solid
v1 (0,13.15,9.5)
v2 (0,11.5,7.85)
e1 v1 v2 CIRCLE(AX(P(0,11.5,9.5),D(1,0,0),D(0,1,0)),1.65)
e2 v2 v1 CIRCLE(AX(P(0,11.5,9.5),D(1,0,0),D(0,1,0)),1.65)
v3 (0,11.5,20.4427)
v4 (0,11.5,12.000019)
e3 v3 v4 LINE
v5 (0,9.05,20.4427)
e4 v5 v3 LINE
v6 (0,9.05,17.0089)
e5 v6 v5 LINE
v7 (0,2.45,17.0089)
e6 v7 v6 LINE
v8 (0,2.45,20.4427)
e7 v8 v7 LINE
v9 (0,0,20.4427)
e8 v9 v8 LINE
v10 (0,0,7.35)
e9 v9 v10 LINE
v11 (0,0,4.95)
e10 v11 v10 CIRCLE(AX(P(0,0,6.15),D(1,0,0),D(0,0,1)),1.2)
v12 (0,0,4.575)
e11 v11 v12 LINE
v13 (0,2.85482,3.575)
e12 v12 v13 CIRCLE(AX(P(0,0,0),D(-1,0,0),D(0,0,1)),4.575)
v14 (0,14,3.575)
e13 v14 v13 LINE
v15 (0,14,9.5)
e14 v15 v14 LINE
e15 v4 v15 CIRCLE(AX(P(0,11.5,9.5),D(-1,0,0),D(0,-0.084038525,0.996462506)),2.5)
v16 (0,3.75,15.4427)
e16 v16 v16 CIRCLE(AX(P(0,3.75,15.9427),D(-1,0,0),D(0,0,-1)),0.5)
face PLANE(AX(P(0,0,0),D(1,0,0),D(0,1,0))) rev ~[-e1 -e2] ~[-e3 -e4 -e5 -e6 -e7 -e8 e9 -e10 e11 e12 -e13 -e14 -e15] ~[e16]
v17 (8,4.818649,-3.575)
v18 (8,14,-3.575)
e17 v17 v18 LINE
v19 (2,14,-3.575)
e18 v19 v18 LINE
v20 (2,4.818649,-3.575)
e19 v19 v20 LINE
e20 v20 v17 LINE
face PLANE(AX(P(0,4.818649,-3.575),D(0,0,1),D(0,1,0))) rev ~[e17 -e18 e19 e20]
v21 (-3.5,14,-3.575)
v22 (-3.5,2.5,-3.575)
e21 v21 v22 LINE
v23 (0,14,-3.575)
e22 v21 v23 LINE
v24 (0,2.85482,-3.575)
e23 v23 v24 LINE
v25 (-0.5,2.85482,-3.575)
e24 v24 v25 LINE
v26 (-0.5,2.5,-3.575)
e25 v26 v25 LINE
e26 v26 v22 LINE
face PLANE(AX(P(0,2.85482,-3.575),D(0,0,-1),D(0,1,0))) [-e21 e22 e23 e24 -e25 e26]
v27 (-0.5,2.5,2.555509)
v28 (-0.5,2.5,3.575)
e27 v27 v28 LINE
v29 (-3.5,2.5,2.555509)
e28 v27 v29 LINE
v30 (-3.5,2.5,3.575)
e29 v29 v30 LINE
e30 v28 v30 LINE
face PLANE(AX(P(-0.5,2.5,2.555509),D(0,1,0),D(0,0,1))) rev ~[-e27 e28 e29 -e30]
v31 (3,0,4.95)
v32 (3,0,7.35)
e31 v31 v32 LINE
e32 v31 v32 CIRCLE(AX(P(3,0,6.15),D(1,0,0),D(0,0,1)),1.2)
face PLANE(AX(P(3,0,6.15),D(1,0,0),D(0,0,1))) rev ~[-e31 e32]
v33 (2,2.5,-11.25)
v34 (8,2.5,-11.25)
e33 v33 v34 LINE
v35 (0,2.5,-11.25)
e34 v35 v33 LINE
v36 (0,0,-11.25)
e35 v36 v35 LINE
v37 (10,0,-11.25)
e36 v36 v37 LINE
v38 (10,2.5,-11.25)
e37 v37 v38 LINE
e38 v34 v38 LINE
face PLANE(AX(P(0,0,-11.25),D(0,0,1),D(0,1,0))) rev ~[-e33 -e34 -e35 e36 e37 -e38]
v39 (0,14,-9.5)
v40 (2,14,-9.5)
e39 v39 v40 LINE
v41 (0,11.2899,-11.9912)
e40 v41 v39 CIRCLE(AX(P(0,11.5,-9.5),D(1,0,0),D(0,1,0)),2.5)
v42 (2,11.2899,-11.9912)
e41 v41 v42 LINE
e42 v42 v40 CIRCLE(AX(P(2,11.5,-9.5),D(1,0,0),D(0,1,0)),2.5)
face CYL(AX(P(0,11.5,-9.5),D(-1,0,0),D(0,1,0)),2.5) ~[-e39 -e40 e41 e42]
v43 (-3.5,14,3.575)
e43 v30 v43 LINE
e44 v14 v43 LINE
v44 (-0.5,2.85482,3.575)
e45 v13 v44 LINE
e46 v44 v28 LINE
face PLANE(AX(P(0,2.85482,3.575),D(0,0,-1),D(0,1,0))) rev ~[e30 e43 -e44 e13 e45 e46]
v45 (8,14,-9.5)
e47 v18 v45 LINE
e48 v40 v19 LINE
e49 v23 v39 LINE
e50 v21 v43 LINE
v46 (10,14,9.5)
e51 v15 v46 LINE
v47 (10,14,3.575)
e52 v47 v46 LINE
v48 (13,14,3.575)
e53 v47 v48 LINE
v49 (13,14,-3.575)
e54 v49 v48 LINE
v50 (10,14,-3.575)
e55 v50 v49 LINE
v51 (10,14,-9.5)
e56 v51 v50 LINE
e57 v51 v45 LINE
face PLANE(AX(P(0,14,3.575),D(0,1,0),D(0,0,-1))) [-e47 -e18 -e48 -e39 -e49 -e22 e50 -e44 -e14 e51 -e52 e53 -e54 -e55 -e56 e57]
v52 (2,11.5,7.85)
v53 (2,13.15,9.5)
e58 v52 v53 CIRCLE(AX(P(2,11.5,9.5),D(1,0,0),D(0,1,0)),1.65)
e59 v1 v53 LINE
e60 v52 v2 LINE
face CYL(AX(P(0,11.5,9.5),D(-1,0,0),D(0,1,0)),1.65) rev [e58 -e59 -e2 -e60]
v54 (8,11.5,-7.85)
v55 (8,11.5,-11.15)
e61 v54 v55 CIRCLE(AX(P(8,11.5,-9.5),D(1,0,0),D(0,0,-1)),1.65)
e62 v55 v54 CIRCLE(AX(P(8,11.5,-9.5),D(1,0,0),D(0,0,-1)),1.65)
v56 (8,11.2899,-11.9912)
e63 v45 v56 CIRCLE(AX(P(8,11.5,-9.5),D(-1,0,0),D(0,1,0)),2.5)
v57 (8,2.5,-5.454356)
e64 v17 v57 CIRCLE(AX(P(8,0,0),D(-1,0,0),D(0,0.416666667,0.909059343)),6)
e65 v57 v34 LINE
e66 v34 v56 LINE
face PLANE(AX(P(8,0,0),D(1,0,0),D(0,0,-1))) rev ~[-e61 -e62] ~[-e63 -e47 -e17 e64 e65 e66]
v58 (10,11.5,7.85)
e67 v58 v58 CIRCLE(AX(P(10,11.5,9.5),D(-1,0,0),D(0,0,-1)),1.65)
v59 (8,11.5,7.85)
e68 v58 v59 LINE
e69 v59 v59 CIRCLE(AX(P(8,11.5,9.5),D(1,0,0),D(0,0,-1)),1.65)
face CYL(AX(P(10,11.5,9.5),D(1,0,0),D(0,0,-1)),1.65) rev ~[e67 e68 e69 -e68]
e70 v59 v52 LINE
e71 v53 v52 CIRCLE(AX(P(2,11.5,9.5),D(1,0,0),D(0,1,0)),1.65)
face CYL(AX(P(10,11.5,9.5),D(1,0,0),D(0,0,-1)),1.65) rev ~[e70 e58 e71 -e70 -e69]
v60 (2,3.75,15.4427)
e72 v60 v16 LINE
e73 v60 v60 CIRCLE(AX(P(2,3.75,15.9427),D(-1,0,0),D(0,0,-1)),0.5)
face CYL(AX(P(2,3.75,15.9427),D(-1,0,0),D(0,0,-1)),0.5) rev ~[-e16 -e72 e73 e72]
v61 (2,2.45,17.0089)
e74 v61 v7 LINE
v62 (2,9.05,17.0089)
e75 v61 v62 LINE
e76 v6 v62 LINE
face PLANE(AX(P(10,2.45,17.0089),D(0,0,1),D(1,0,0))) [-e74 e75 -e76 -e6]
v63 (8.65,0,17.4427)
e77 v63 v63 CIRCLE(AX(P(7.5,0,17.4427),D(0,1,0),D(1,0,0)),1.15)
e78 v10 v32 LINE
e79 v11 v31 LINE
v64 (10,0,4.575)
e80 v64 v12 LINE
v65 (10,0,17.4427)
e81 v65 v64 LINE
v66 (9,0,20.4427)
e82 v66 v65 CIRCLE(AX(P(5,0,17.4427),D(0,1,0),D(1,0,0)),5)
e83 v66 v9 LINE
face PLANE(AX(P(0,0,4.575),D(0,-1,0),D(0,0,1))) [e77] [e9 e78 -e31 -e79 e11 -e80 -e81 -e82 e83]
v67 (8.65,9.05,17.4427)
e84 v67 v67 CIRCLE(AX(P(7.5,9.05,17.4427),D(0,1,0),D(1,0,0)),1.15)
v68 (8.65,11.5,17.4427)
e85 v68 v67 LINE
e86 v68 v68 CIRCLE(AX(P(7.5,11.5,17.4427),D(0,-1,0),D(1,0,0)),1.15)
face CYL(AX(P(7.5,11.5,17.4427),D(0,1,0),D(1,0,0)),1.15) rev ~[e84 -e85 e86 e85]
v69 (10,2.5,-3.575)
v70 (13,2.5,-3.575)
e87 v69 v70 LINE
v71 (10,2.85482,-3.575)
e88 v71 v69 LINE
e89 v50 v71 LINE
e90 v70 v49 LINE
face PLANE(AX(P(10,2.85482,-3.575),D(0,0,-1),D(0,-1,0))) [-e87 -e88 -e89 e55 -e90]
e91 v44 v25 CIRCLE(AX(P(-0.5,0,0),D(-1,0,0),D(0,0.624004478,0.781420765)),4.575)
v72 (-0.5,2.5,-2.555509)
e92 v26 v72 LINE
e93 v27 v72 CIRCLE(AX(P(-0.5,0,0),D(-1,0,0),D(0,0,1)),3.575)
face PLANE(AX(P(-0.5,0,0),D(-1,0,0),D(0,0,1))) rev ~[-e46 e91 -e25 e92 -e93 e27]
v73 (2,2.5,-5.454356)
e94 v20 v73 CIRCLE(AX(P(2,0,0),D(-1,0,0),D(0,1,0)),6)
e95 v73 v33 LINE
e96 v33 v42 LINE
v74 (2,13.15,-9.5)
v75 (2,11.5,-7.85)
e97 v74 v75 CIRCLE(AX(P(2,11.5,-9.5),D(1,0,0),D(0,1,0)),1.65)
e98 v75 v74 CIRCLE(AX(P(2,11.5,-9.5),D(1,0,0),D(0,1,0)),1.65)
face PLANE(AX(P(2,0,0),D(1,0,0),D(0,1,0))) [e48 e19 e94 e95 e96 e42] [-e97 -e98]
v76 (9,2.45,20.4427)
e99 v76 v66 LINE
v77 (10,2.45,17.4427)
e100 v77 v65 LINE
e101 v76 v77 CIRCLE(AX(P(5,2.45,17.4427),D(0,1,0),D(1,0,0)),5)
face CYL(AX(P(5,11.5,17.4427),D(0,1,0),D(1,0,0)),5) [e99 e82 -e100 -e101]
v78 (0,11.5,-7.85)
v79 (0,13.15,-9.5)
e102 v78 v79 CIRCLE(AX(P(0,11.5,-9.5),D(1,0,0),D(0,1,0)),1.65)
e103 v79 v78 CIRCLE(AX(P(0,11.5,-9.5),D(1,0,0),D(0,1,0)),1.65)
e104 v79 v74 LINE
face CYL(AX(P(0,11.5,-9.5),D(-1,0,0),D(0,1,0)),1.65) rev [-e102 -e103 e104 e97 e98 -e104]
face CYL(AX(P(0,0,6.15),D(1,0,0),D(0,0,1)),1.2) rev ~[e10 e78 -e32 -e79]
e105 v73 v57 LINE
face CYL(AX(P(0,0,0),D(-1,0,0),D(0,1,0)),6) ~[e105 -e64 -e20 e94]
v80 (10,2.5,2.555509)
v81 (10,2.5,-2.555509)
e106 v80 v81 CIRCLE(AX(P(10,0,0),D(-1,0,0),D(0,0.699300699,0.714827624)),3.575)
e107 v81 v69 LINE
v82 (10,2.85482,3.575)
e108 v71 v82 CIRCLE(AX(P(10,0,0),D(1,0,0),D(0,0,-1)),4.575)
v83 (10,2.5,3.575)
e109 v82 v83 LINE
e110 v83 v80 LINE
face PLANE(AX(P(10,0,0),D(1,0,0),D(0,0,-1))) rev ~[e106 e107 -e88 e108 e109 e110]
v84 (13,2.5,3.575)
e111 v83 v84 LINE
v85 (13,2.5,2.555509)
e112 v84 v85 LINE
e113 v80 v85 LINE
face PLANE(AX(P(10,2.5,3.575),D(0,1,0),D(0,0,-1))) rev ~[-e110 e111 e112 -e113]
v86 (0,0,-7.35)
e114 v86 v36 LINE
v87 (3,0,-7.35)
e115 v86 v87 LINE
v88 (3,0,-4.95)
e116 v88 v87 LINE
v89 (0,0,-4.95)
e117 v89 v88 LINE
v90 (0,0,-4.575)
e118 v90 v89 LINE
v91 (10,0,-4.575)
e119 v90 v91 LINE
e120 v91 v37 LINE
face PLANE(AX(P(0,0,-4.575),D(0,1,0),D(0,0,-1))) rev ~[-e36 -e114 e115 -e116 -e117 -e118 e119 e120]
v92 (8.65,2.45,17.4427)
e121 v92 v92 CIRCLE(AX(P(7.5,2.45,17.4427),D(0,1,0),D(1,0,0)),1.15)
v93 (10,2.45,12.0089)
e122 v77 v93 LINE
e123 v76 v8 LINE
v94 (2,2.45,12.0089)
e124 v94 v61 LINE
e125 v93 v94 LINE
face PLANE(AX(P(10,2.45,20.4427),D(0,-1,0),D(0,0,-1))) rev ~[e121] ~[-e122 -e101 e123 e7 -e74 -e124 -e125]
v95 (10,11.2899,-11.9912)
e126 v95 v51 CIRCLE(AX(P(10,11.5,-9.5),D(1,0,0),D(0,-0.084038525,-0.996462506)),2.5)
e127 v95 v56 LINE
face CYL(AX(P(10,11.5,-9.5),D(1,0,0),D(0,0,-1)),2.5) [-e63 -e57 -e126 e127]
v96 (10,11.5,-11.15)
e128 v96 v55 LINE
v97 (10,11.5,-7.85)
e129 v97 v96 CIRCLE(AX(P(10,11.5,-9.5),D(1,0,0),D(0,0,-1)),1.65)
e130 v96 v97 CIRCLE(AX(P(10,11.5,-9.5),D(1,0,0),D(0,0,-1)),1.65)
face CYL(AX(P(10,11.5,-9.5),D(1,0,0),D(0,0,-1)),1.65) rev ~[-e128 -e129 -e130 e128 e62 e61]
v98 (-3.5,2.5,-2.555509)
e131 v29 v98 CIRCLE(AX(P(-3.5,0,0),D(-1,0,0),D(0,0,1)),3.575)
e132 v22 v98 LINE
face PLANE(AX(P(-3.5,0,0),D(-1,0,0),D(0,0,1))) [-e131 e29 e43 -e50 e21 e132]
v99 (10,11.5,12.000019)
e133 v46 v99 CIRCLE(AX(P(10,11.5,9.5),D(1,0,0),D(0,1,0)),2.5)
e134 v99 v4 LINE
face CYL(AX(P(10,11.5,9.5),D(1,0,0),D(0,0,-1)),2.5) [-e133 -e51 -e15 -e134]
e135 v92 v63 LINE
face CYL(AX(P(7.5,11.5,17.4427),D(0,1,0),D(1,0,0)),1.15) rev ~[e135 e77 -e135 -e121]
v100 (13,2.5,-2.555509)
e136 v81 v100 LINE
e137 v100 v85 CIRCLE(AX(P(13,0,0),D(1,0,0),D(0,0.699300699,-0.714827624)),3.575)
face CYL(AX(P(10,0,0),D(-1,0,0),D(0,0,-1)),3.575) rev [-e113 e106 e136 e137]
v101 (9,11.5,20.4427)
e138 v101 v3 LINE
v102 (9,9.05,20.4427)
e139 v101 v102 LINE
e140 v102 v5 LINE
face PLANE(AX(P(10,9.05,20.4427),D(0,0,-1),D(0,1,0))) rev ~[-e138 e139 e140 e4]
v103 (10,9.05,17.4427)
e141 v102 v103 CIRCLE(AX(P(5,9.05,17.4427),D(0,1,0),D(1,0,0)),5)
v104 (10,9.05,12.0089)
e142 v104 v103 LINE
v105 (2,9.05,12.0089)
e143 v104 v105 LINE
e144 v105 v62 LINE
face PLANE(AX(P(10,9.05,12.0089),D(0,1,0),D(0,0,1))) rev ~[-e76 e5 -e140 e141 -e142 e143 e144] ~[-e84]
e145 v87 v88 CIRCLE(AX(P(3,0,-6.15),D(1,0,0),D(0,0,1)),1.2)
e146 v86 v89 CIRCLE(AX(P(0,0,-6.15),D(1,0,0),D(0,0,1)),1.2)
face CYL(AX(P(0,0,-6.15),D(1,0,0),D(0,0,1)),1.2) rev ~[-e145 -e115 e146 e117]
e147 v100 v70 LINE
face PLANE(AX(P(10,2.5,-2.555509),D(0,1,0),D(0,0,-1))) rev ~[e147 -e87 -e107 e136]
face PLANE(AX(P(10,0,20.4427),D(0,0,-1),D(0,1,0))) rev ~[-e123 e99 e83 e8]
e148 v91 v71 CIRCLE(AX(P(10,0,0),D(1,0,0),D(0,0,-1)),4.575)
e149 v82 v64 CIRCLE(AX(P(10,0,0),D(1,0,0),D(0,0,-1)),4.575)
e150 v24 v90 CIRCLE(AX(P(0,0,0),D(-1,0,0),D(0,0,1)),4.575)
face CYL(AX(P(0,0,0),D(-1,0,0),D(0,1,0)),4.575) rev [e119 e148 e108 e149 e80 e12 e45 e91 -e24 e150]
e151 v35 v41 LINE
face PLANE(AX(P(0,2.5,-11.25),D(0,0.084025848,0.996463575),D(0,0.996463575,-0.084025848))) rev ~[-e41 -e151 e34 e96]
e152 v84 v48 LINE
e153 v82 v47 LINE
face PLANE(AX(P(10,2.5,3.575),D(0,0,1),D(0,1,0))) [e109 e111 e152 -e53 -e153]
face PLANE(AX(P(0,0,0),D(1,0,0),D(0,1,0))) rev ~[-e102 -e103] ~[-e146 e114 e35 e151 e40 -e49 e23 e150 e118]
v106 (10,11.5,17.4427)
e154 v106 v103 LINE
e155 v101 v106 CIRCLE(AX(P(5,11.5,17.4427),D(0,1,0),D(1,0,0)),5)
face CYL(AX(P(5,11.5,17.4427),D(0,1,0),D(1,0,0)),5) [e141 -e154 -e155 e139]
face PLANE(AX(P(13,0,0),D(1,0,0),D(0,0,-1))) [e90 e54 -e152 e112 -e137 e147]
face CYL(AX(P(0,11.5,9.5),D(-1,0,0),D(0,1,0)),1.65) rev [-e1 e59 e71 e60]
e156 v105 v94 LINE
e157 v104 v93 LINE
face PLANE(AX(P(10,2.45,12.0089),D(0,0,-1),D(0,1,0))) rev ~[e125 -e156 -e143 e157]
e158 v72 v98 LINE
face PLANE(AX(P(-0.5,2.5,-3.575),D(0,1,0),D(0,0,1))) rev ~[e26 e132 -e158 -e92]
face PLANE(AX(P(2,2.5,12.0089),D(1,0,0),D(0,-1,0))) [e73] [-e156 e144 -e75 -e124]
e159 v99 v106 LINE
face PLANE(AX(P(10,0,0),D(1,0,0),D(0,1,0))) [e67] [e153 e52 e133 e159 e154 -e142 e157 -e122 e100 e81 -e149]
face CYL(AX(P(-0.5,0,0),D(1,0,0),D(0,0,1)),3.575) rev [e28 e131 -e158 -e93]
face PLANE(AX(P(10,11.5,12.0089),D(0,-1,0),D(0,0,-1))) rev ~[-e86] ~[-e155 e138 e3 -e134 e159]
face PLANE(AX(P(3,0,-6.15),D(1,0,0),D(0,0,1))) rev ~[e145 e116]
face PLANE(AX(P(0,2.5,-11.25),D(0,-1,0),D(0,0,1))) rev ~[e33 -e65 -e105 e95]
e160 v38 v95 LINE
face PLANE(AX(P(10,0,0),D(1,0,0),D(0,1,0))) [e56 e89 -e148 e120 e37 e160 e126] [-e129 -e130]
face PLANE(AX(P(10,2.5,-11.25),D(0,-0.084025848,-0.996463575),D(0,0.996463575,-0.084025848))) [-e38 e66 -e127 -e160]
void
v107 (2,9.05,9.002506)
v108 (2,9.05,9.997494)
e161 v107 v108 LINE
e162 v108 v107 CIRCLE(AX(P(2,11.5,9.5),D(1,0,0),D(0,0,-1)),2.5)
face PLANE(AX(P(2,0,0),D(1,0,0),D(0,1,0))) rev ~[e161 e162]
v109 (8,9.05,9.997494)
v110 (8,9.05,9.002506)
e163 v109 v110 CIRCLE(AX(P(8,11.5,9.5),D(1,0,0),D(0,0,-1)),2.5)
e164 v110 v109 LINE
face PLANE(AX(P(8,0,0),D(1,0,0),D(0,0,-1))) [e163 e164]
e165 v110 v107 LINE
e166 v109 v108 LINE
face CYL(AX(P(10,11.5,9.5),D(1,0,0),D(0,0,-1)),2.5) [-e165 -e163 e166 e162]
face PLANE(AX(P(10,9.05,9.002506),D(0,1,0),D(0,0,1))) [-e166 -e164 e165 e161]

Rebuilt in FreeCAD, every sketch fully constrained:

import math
import FreeCAD as App
import Part
import Sketcher

V = App.Vector
Q = App.Units.Quantity

doc = App.newDocument("Part")
params = doc.addObject("Spreadsheet::Sheet", "Params")
for row, (alias, value) in enumerate([
    ("sketch1_diameter", "3.3 mm"),
    ("sketch1_radius", "2.5 mm"),
    ("sketch1_height", "19 mm"),
    ("sketch1_radius2", "1.25 mm"),
    ("sketch1_width", "2.5 mm"),
    ("pad1_length", "2 mm"),
    ("sketch2_radius", "6 mm"),
    ("sketch2_width", "2.5 mm"),
    ("sketch2_height", "7.15 mm"),
    ("pad2_length", "10 mm"),
    ("sketch3_radius", "6 mm"),
    ("sketch3_diameter", "3.3 mm"),
    ("sketch3_radius2", "2.5 mm"),
    ("sketch3_height", "19 mm"),
    ("pad3_length", "2 mm"),
    ("sketch4_height", "7.15 mm"),
    ("pad4_length", "0.5 mm"),
    ("sketch5_height", "7.15 mm"),
    ("sketch5_width", "11.5 mm"),
    ("pad5_length", "3 mm"),
    ("sketch6_width", "11.5 mm"),
    ("sketch6_height", "7.15 mm"),
    ("pad6_length", "3 mm"),
    ("sketch7_diameter", "2.4 mm"),
    ("hole_diameter", "2.4 mm"),
    ("hole_depth", "3 mm"),
    ("sketch8_radius", "6 mm"),
    ("sketch8_diameter", "3.3 mm"),
    ("sketch8_radius2", "2.5 mm"),
    ("sketch8_width", "6.6 mm"),
    ("sketch8_width2", "2.5 mm"),
    ("pad7_length", "10 mm"),
    ("sketch9_diameter", "2.3 mm"),
    ("sketch9_height", "3 mm"),
    ("sketch9_radius", "5 mm"),
    ("pocket1_length", "11.5 mm"),
    ("sketch10_width", "2 mm"),
    ("sketch10_height", "6.6 mm"),
    ("pad8_length", "5 mm"),
    ("sketch11_diameter", "1 mm"),
    ("hole2_diameter", "1 mm"),
    ("hole2_depth", "8 mm"),
], start=1):
    params.set(f"A{row}", alias)
    params.set(f"B{row}", "=" + value)
    params.setAlias(f"B{row}", alias)

body = doc.addObject("PartDesign::Body", "Body")

sketch1 = body.newObject("Sketcher::SketchObject", "Sketch")
sketch1.AttachmentSupport = (doc.getObject("YZ_Plane"), [""])
sketch1.MapMode = "FlatFace"
sketch1.addGeometry([
    Part.LineSegment(V(0, -4.58, 0), V(0, -4.9, 0)),
    Part.ArcOfCircle(Part.Circle(V(0, -6.15, 0), V(0, 0, 1), 1.25), math.radians(-90), math.radians(90)),
    Part.LineSegment(V(0, -7.4, 0), V(0, -11.25, 0)),
    Part.LineSegment(V(0, -11.25, 0), V(2.5, -11.25, 0)),
    Part.LineSegment(V(2.5, -11.25, 0), V(11.29, -11.99, 0)),
    Part.ArcOfCircle(Part.Circle(V(11.5, -9.5, 0), V(0, 0, 1), 2.5), math.radians(-95), math.radians(0)),
    Part.LineSegment(V(14, -9.5, 0), V(14, 9.5, 0)),
    Part.ArcOfCircle(Part.Circle(V(11.5, 9.5, 0), V(0, 0, 1), 2.5), math.radians(0), math.radians(95)),
    Part.LineSegment(V(11.29, 11.99, 0), V(2.5, 11.25, 0)),
    Part.LineSegment(V(2.5, 11.25, 0), V(0, 11.25, 0)),
    Part.LineSegment(V(0, 11.25, 0), V(0, 7.4, 0)),
    Part.ArcOfCircle(Part.Circle(V(0, 6.15, 0), V(0, 0, 1), 1.25), math.radians(-90), math.radians(90)),
    Part.LineSegment(V(0, 4.9, 0), V(0, 4.58, 0)),
    Part.ArcOfCircle(Part.Circle(V(0, 0, 0), V(0, 0, 1), 4.58), math.radians(-90), math.radians(90)),
    Part.Circle(V(11.5, -9.5, 0), V(0, 0, 1), 1.65),
    Part.Circle(V(11.5, 9.5, 0), V(0, 0, 1), 1.65),
], False)
sketch1.addConstraint([
    Sketcher.Constraint("Coincident", 0, 2, 1, 2),
    Sketcher.Constraint("Coincident", 1, 1, 2, 1),
    Sketcher.Constraint("Coincident", 2, 2, 3, 1),
    Sketcher.Constraint("Coincident", 3, 2, 4, 1),
    Sketcher.Constraint("Tangent", 4, 2, 5, 1),
    Sketcher.Constraint("Tangent", 5, 2, 6, 1),
    Sketcher.Constraint("Tangent", 6, 2, 7, 1),
    Sketcher.Constraint("Tangent", 7, 2, 8, 1),
    Sketcher.Constraint("Coincident", 8, 2, 9, 1),
    Sketcher.Constraint("Coincident", 9, 2, 10, 1),
    Sketcher.Constraint("Coincident", 10, 2, 11, 2),
    Sketcher.Constraint("Coincident", 11, 1, 12, 1),
    Sketcher.Constraint("Coincident", 12, 2, 13, 2),
    Sketcher.Constraint("Coincident", 13, 1, 0, 1),
    Sketcher.Constraint("Vertical", 0),
    Sketcher.Constraint("Vertical", 2),
    Sketcher.Constraint("Horizontal", 3),
    Sketcher.Constraint("Vertical", 6),
    Sketcher.Constraint("Horizontal", 9),
    Sketcher.Constraint("Vertical", 10),
    Sketcher.Constraint("Vertical", 12),
    Sketcher.Constraint("Coincident", 13, 3, -1, 1),
    Sketcher.Constraint("Coincident", 14, 3, 5, 3),
    Sketcher.Constraint("Coincident", 15, 3, 7, 3),
    Sketcher.Constraint("Equal", 5, 7),
    Sketcher.Constraint("Equal", 1, 11),
    Sketcher.Constraint("Equal", 14, 15),
    Sketcher.Constraint("Symmetric", 1, 3, 11, 3, -1, 1),
    Sketcher.Constraint("Symmetric", 2, 2, 9, 2, -1, 1),
    Sketcher.Constraint("Symmetric", 4, 2, 7, 2, -1),
    Sketcher.Constraint("PointOnObject", 1, 3, -2),
    Sketcher.Constraint("PointOnObject", 0, 2, -2),
    Sketcher.Constraint("PointOnObject", 1, 1, -2),
    Sketcher.Constraint("PointOnObject", 11, 1, -2),
    Sketcher.Constraint("Diameter", 14, Q("3.3 mm")),
    Sketcher.Constraint("Radius", 5, Q("2.5 mm")),
    Sketcher.Constraint("DistanceY", 6, 1, 6, 2, Q("19 mm")),
    Sketcher.Constraint("Radius", 1, Q("1.25 mm")),
    Sketcher.Constraint("DistanceX", 3, 1, 3, 2, Q("2.5 mm")),
    Sketcher.Constraint("Radius", 13, Q("4.575 mm")),
    Sketcher.Constraint("DistanceX", -1, 1, 5, 3, Q("11.5 mm")),
    Sketcher.Constraint("DistanceY", 1, 3, 11, 3, Q("12.3 mm")),
    Sketcher.Constraint("DistanceY", 2, 2, -1, 1, Q("11.25 mm")),
])
sketch1.setExpression("Constraints[34]", "Params.sketch1_diameter")
sketch1.setExpression("Constraints[35]", "Params.sketch1_radius")
sketch1.setExpression("Constraints[36]", "Params.sketch1_height")
sketch1.setExpression("Constraints[37]", "Params.sketch1_radius2")
sketch1.setExpression("Constraints[38]", "Params.sketch1_width")
pad1 = body.newObject("PartDesign::Pad", "Pad")
pad1.Profile = sketch1
pad1.setExpression("Length", "Params.pad1_length")

sketch2 = body.newObject("Sketcher::SketchObject", "Sketch001")
sketch2.AttachmentSupport = (doc.getObject("YZ_Plane"), [""])
sketch2.MapMode = "FlatFace"
sketch2.addGeometry([
    Part.LineSegment(V(0, -4.6, 0), V(0, -11.2, 0)),
    Part.LineSegment(V(0, -11.2, 0), V(2.5, -11.2, 0)),
    Part.LineSegment(V(2.5, -11.2, 0), V(2.5, -5.5, 0)),
    Part.ArcOfCircle(Part.Circle(V(0, 0, 0), V(0, 0, 1), 6), math.radians(-65), math.radians(-37)),
    Part.LineSegment(V(4.8, -3.6, 0), V(14, -3.6, 0)),
    Part.LineSegment(V(14, -3.6, 0), V(14, 3.6, 0)),
    Part.LineSegment(V(14, 3.6, 0), V(4.8, 3.6, 0)),
    Part.ArcOfCircle(Part.Circle(V(0, 0, 0), V(0, 0, 1), 6), math.radians(37), math.radians(65)),
    Part.LineSegment(V(2.5, 5.5, 0), V(2.5, 11.2, 0)),
    Part.LineSegment(V(2.5, 11.2, 0), V(0, 11.2, 0)),
    Part.LineSegment(V(0, 11.2, 0), V(0, 4.6, 0)),
    Part.ArcOfCircle(Part.Circle(V(0, 0, 0), V(0, 0, 1), 4.6), math.radians(-90), math.radians(90)),
], False)
sketch2.addConstraint([
    Sketcher.Constraint("Coincident", 0, 2, 1, 1),
    Sketcher.Constraint("Coincident", 1, 2, 2, 1),
    Sketcher.Constraint("Coincident", 2, 2, 3, 1),
    Sketcher.Constraint("Coincident", 3, 2, 4, 1),
    Sketcher.Constraint("Coincident", 4, 2, 5, 1),
    Sketcher.Constraint("Coincident", 5, 2, 6, 1),
    Sketcher.Constraint("Coincident", 6, 2, 7, 1),
    Sketcher.Constraint("Coincident", 7, 2, 8, 1),
    Sketcher.Constraint("Coincident", 8, 2, 9, 1),
    Sketcher.Constraint("Coincident", 9, 2, 10, 1),
    Sketcher.Constraint("Coincident", 10, 2, 11, 2),
    Sketcher.Constraint("Coincident", 11, 1, 0, 1),
    Sketcher.Constraint("Vertical", 0),
    Sketcher.Constraint("Horizontal", 1),
    Sketcher.Constraint("Vertical", 2),
    Sketcher.Constraint("Horizontal", 4),
    Sketcher.Constraint("Vertical", 5),
    Sketcher.Constraint("Horizontal", 6),
    Sketcher.Constraint("Vertical", 8),
    Sketcher.Constraint("Horizontal", 9),
    Sketcher.Constraint("Vertical", 10),
    Sketcher.Constraint("Coincident", 3, 3, -1, 1),
    Sketcher.Constraint("Coincident", 7, 3, -1, 1),
    Sketcher.Constraint("Coincident", 11, 3, -1, 1),
    Sketcher.Constraint("Equal", 3, 7),
    Sketcher.Constraint("Symmetric", 0, 2, 9, 2, -1, 1),
    Sketcher.Constraint("PointOnObject", 0, 2, -2),
    Sketcher.Constraint("Vertical", 3, 2, 6, 2),
    Sketcher.Constraint("Vertical", 2, 2, 7, 2),
    Sketcher.Constraint("Radius", 3, Q("6 mm")),
    Sketcher.Constraint("DistanceX", 1, 1, 1, 2, Q("2.5 mm")),
    Sketcher.Constraint("Radius", 11, Q("4.575 mm")),
    Sketcher.Constraint("DistanceY", 5, 1, 5, 2, Q("7.15 mm")),
    Sketcher.Constraint("DistanceX", 2, 2, 4, 2, Q("11.5 mm")),
    Sketcher.Constraint("DistanceY", 0, 2, -1, 1, Q("11.25 mm")),
])
sketch2.setExpression("Constraints[29]", "Params.sketch2_radius")
sketch2.setExpression("Constraints[30]", "Params.sketch2_width")
sketch2.setExpression("Constraints[32]", "Params.sketch2_height")
pad2 = body.newObject("PartDesign::Pad", "Pad001")
pad2.Profile = sketch2
pad2.setExpression("Length", "Params.pad2_length")

sketch3 = body.newObject("Sketcher::SketchObject", "Sketch002")
sketch3.AttachmentSupport = (doc.getObject("YZ_Plane"), [""])
sketch3.MapMode = "FlatFace"
sketch3.AttachmentOffset = App.Placement(V(0, 0, 10), App.Rotation())
sketch3.addGeometry([
    Part.LineSegment(V(2.5, -5.5, 0), V(2.5, -11.2, 0)),
    Part.LineSegment(V(2.5, -11.2, 0), V(11.3, -12, 0)),
    Part.ArcOfCircle(Part.Circle(V(11.5, -9.5, 0), V(0, 0, 1), 2.5), math.radians(-95), math.radians(0)),
    Part.LineSegment(V(14, -9.5, 0), V(14, 9.5, 0)),
    Part.ArcOfCircle(Part.Circle(V(11.5, 9.5, 0), V(0, 0, 1), 2.5), math.radians(0), math.radians(95)),
    Part.LineSegment(V(11.3, 12, 0), V(2.5, 11.2, 0)),
    Part.LineSegment(V(2.5, 11.2, 0), V(2.5, 5.5, 0)),
    Part.ArcOfCircle(Part.Circle(V(0, 0, 0), V(0, 0, 1), 6), math.radians(-65), math.radians(65)),
    Part.Circle(V(11.5, -9.5, 0), V(0, 0, 1), 1.6),
    Part.Circle(V(11.5, 9.5, 0), V(0, 0, 1), 1.6),
], False)
sketch3.addConstraint([
    Sketcher.Constraint("Coincident", 0, 2, 1, 1),
    Sketcher.Constraint("Tangent", 1, 2, 2, 1),
    Sketcher.Constraint("Tangent", 2, 2, 3, 1),
    Sketcher.Constraint("Tangent", 3, 2, 4, 1),
    Sketcher.Constraint("Tangent", 4, 2, 5, 1),
    Sketcher.Constraint("Coincident", 5, 2, 6, 1),
    Sketcher.Constraint("Coincident", 6, 2, 7, 2),
    Sketcher.Constraint("Coincident", 7, 1, 0, 1),
    Sketcher.Constraint("Vertical", 0),
    Sketcher.Constraint("Vertical", 3),
    Sketcher.Constraint("Vertical", 6),
    Sketcher.Constraint("Coincident", 7, 3, -1, 1),
    Sketcher.Constraint("Coincident", 8, 3, 2, 3),
    Sketcher.Constraint("Coincident", 9, 3, 4, 3),
    Sketcher.Constraint("Equal", 2, 4),
    Sketcher.Constraint("Equal", 8, 9),
    Sketcher.Constraint("Symmetric", 1, 2, 4, 2, -1),
    Sketcher.Constraint("Vertical", 0, 2, 5, 2),
    Sketcher.Constraint("Radius", 7, Q("6 mm")),
    Sketcher.Constraint("Diameter", 8, Q("3.3 mm")),
    Sketcher.Constraint("Radius", 2, Q("2.5 mm")),
    Sketcher.Constraint("DistanceY", 3, 1, 3, 2, Q("19 mm")),
    Sketcher.Constraint("DistanceX", -1, 1, 2, 3, Q("11.5 mm")),
    Sketcher.Constraint("DistanceX", -1, 1, 0, 2, Q("2.5 mm")),
    Sketcher.Constraint("Angle", 1, Q("-4.82 deg")),
])
sketch3.setExpression("Constraints[18]", "Params.sketch3_radius")
sketch3.setExpression("Constraints[19]", "Params.sketch3_diameter")
sketch3.setExpression("Constraints[20]", "Params.sketch3_radius2")
sketch3.setExpression("Constraints[21]", "Params.sketch3_height")
pad3 = body.newObject("PartDesign::Pad", "Pad002")
pad3.Profile = sketch3
pad3.setExpression("Length", "Params.pad3_length")
pad3.Reversed = True

sketch4 = body.newObject("Sketcher::SketchObject", "Sketch003")
sketch4.AttachmentSupport = (doc.getObject("YZ_Plane"), [""])
sketch4.MapMode = "FlatFace"
sketch4.addGeometry([
    Part.LineSegment(V(2.9, -3.6, 0), V(14, -3.6, 0)),
    Part.LineSegment(V(14, -3.6, 0), V(14, 3.6, 0)),
    Part.LineSegment(V(14, 3.6, 0), V(2.9, 3.6, 0)),
    Part.ArcOfCircle(Part.Circle(V(0, 0, 0), V(0, 0, 1), 4.6), math.radians(-51), math.radians(51)),
], False)
sketch4.addConstraint([
    Sketcher.Constraint("Coincident", 0, 2, 1, 1),
    Sketcher.Constraint("Coincident", 1, 2, 2, 1),
    Sketcher.Constraint("Coincident", 2, 2, 3, 2),
    Sketcher.Constraint("Coincident", 3, 1, 0, 1),
    Sketcher.Constraint("Horizontal", 0),
    Sketcher.Constraint("Vertical", 1),
    Sketcher.Constraint("Horizontal", 2),
    Sketcher.Constraint("Coincident", 3, 3, -1, 1),
    Sketcher.Constraint("Vertical", 2, 2, 3, 1),
    Sketcher.Constraint("Radius", 3, Q("4.575 mm")),
    Sketcher.Constraint("DistanceY", 1, 1, 1, 2, Q("7.15 mm")),
    Sketcher.Constraint("DistanceX", -1, 1, 0, 2, Q("14 mm")),
])
sketch4.setExpression("Constraints[10]", "Params.sketch4_height")
pad4 = body.newObject("PartDesign::Pad", "Pad003")
pad4.Profile = sketch4
pad4.setExpression("Length", "Params.pad4_length")
pad4.Reversed = True

sketch5 = body.newObject("Sketcher::SketchObject", "Sketch004")
sketch5.AttachmentSupport = (doc.getObject("YZ_Plane"), [""])
sketch5.MapMode = "FlatFace"
sketch5.AttachmentOffset = App.Placement(V(0, 0, -0.5), App.Rotation())
sketch5.addGeometry([
    Part.ArcOfCircle(Part.Circle(V(0, 0, 0), V(0, 0, 1), 3.6), math.radians(-46), math.radians(46)),
    Part.LineSegment(V(2.5, 2.6, 0), V(2.5, 3.6, 0)),
    Part.LineSegment(V(2.5, 3.6, 0), V(14, 3.6, 0)),
    Part.LineSegment(V(14, 3.6, 0), V(14, -3.6, 0)),
    Part.LineSegment(V(14, -3.6, 0), V(2.5, -3.6, 0)),
    Part.LineSegment(V(2.5, -3.6, 0), V(2.5, -2.6, 0)),
], False)
sketch5.addConstraint([
    Sketcher.Constraint("Coincident", 0, 2, 1, 1),
    Sketcher.Constraint("Coincident", 1, 2, 2, 1),
    Sketcher.Constraint("Coincident", 2, 2, 3, 1),
    Sketcher.Constraint("Coincident", 3, 2, 4, 1),
    Sketcher.Constraint("Coincident", 4, 2, 5, 1),
    Sketcher.Constraint("Coincident", 5, 2, 0, 1),
    Sketcher.Constraint("Vertical", 1),
    Sketcher.Constraint("Horizontal", 2),
    Sketcher.Constraint("Vertical", 3),
    Sketcher.Constraint("Horizontal", 4),
    Sketcher.Constraint("Vertical", 5),
    Sketcher.Constraint("Coincident", 0, 3, -1, 1),
    Sketcher.Constraint("Symmetric", 1, 2, 4, 2, -1),
    Sketcher.Constraint("Radius", 0, Q("3.575 mm")),
    Sketcher.Constraint("DistanceY", 3, 2, 3, 1, Q("7.15 mm")),
    Sketcher.Constraint("DistanceX", 2, 1, 2, 2, Q("11.5 mm")),
    Sketcher.Constraint("DistanceX", -1, 1, 2, 2, Q("14 mm")),
])
sketch5.setExpression("Constraints[14]", "Params.sketch5_height")
sketch5.setExpression("Constraints[15]", "Params.sketch5_width")
pad5 = body.newObject("PartDesign::Pad", "Pad004")
pad5.Profile = sketch5
pad5.setExpression("Length", "Params.pad5_length")
pad5.Reversed = True

sketch6 = body.newObject("Sketcher::SketchObject", "Sketch005")
sketch6.AttachmentSupport = (doc.getObject("YZ_Plane"), [""])
sketch6.MapMode = "FlatFace"
sketch6.AttachmentOffset = App.Placement(V(0, 0, 10), App.Rotation())
sketch6.addGeometry([
    Part.LineSegment(V(2.5, 3.6, 0), V(2.5, 2.6, 0)),
    Part.ArcOfCircle(Part.Circle(V(0, 0, 0), V(0, 0, 1), 3.6), math.radians(-46), math.radians(46)),
    Part.LineSegment(V(2.5, -2.6, 0), V(2.5, -3.6, 0)),
    Part.LineSegment(V(2.5, -3.6, 0), V(14, -3.6, 0)),
    Part.LineSegment(V(14, -3.6, 0), V(14, 3.6, 0)),
    Part.LineSegment(V(14, 3.6, 0), V(2.5, 3.6, 0)),
], False)
sketch6.addConstraint([
    Sketcher.Constraint("Coincident", 0, 2, 1, 2),
    Sketcher.Constraint("Coincident", 1, 1, 2, 1),
    Sketcher.Constraint("Coincident", 2, 2, 3, 1),
    Sketcher.Constraint("Coincident", 3, 2, 4, 1),
    Sketcher.Constraint("Coincident", 4, 2, 5, 1),
    Sketcher.Constraint("Coincident", 5, 2, 0, 1),
    Sketcher.Constraint("Vertical", 0),
    Sketcher.Constraint("Vertical", 2),
    Sketcher.Constraint("Horizontal", 3),
    Sketcher.Constraint("Vertical", 4),
    Sketcher.Constraint("Horizontal", 5),
    Sketcher.Constraint("Coincident", 1, 3, -1, 1),
    Sketcher.Constraint("Symmetric", 2, 2, 5, 2, -1),
    Sketcher.Constraint("DistanceX", 3, 1, 3, 2, Q("11.5 mm")),
    Sketcher.Constraint("Radius", 1, Q("3.575 mm")),
    Sketcher.Constraint("DistanceY", 4, 1, 4, 2, Q("7.15 mm")),
    Sketcher.Constraint("DistanceX", -1, 1, 0, 2, Q("2.5 mm")),
])
sketch6.setExpression("Constraints[13]", "Params.sketch6_width")
sketch6.setExpression("Constraints[15]", "Params.sketch6_height")
pad6 = body.newObject("PartDesign::Pad", "Pad005")
pad6.Profile = sketch6
pad6.setExpression("Length", "Params.pad6_length")

sketch7 = body.newObject("Sketcher::SketchObject", "Sketch006")
sketch7.AttachmentSupport = (doc.getObject("YZ_Plane"), [""])
sketch7.MapMode = "FlatFace"
sketch7.addGeometry([
    Part.Circle(V(0, -6.2, 0), V(0, 0, 1), 1.2),
    Part.Circle(V(0, 6.2, 0), V(0, 0, 1), 1.2),
], False)
sketch7.addConstraint([
    Sketcher.Constraint("Equal", 0, 1),
    Sketcher.Constraint("Symmetric", 0, 3, 1, 3, -1, 1),
    Sketcher.Constraint("PointOnObject", 0, 3, -2),
    Sketcher.Constraint("Diameter", 0, Q("2.4 mm")),
    Sketcher.Constraint("DistanceY", 0, 3, 1, 3, Q("12.3 mm")),
])
sketch7.setExpression("Constraints[3]", "Params.sketch7_diameter")
doc.recompute()
hole = body.newObject("PartDesign::Hole", "Hole")
hole.Profile = sketch7
hole.ThreadType = "None"
hole.setExpression("Diameter", "Params.hole_diameter")
hole.DepthType = "Dimension"
hole.setExpression("Depth", "Params.hole_depth")
hole.DrillPoint = "Flat"
hole.Reversed = True

sketch8 = body.newObject("Sketcher::SketchObject", "Sketch007")
sketch8.AttachmentSupport = (doc.getObject("YZ_Plane"), [""])
sketch8.MapMode = "FlatFace"
sketch8.AttachmentOffset = App.Placement(V(0, 0, 10), App.Rotation())
sketch8.addGeometry([
    Part.LineSegment(V(2.5, 11.2, 0), V(2.5, 5.5, 0)),
    Part.ArcOfCircle(Part.Circle(V(0, 0, 0), V(0, 0, 1), 6), math.radians(37), math.radians(65)),
    Part.LineSegment(V(4.8, 3.6, 0), V(14, 3.6, 0)),
    Part.LineSegment(V(14, 3.6, 0), V(14, 9.5, 0)),
    Part.ArcOfCircle(Part.Circle(V(11.5, 9.5, 0), V(0, 0, 1), 2.5), math.radians(0), math.radians(90)),
    Part.LineSegment(V(11.5, 12, 0), V(11.5, 20.4, 0)),
    Part.LineSegment(V(11.5, 20.4, 0), V(9.1, 20.4, 0)),
    Part.LineSegment(V(9.1, 20.4, 0), V(9.1, 12, 0)),
    Part.LineSegment(V(9.1, 12, 0), V(2.5, 12, 0)),
    Part.LineSegment(V(2.5, 12, 0), V(2.5, 20.4, 0)),
    Part.LineSegment(V(2.5, 20.4, 0), V(0, 20.4, 0)),
    Part.LineSegment(V(0, 20.4, 0), V(0, 11.2, 0)),
    Part.LineSegment(V(0, 11.2, 0), V(2.5, 11.2, 0)),
    Part.ArcOfCircle(Part.Circle(V(11.5, 9.5, 0), V(0, 0, 1), 2.5), math.radians(169), math.radians(191)),
    Part.LineSegment(V(9.1, 10, 0), V(9.1, 9, 0)),
    Part.Circle(V(11.5, 9.5, 0), V(0, 0, 1), 1.6),
], False)
sketch8.addConstraint([
    Sketcher.Constraint("Coincident", 0, 2, 1, 2),
    Sketcher.Constraint("Coincident", 1, 1, 2, 1),
    Sketcher.Constraint("Coincident", 2, 2, 3, 1),
    Sketcher.Constraint("Tangent", 3, 2, 4, 1),
    Sketcher.Constraint("Coincident", 4, 2, 5, 1),
    Sketcher.Constraint("Coincident", 5, 2, 6, 1),
    Sketcher.Constraint("Coincident", 6, 2, 7, 1),
    Sketcher.Constraint("Coincident", 7, 2, 8, 1),
    Sketcher.Constraint("Coincident", 8, 2, 9, 1),
    Sketcher.Constraint("Coincident", 9, 2, 10, 1),
    Sketcher.Constraint("Coincident", 10, 2, 11, 1),
    Sketcher.Constraint("Coincident", 11, 2, 12, 1),
    Sketcher.Constraint("Coincident", 12, 2, 0, 1),
    Sketcher.Constraint("Coincident", 13, 1, 14, 1),
    Sketcher.Constraint("Coincident", 14, 2, 13, 2),
    Sketcher.Constraint("Vertical", 0),
    Sketcher.Constraint("Horizontal", 2),
    Sketcher.Constraint("Vertical", 3),
    Sketcher.Constraint("Vertical", 5),
    Sketcher.Constraint("Horizontal", 6),
    Sketcher.Constraint("Vertical", 7),
    Sketcher.Constraint("Horizontal", 8),
    Sketcher.Constraint("Vertical", 9),
    Sketcher.Constraint("Horizontal", 10),
    Sketcher.Constraint("Vertical", 11),
    Sketcher.Constraint("Horizontal", 12),
    Sketcher.Constraint("Vertical", 14),
    Sketcher.Constraint("Coincident", 1, 3, -1, 1),
    Sketcher.Constraint("Coincident", 13, 3, 4, 3),
    Sketcher.Constraint("Coincident", 15, 3, 4, 3),
    Sketcher.Constraint("Equal", 4, 13),
    Sketcher.Constraint("PointOnObject", 10, 2, -2),
    Sketcher.Constraint("Horizontal", 6, 2, 9, 2),
    Sketcher.Constraint("Vertical", 15, 3, 4, 2),
    Sketcher.Constraint("Vertical", 7, 2, 13, 1),
    Sketcher.Constraint("Equal", 6, 10),
    Sketcher.Constraint("Radius", 1, Q("6 mm")),
    Sketcher.Constraint("Diameter", 15, Q("3.3 mm")),
    Sketcher.Constraint("Radius", 4, Q("2.5 mm")),
    Sketcher.Constraint("DistanceX", 8, 2, 8, 1, Q("6.6 mm")),
    Sketcher.Constraint("DistanceX", 12, 1, 12, 2, Q("2.5 mm")),
    Sketcher.Constraint("DistanceY", -1, 1, 4, 2, Q("12 mm")),
    Sketcher.Constraint("DistanceX", -1, 1, 4, 3, Q("11.5 mm")),
    Sketcher.Constraint("DistanceY", 3, 1, 3, 2, Q("5.925 mm")),
    Sketcher.Constraint("DistanceY", -1, 1, 11, 2, Q("11.25 mm")),
    Sketcher.Constraint("DistanceY", 5, 1, 5, 2, Q("8.4427 mm")),
    Sketcher.Constraint("DistanceY", 7, 2, 7, 1, Q("8.4338 mm")),
])
sketch8.setExpression("Constraints[36]", "Params.sketch8_radius")
sketch8.setExpression("Constraints[37]", "Params.sketch8_diameter")
sketch8.setExpression("Constraints[38]", "Params.sketch8_radius2")
sketch8.setExpression("Constraints[39]", "Params.sketch8_width")
sketch8.setExpression("Constraints[40]", "Params.sketch8_width2")
pad7 = body.newObject("PartDesign::Pad", "Pad006")
pad7.Profile = sketch8
pad7.setExpression("Length", "Params.pad7_length")
pad7.Reversed = True

sketch9 = body.newObject("Sketcher::SketchObject", "Sketch008")
sketch9.AttachmentSupport = (doc.getObject("XZ_Plane"), [""])
sketch9.MapMode = "FlatFace"
sketch9.AttachmentOffset = App.Placement(V(0, 0, -11.5), App.Rotation())
sketch9.addGeometry([
    Part.Circle(V(7.5, 17.4, 0), V(0, 0, 1), 1.1),
    Part.LineSegment(V(10, 20.4, 0), V(10, 17.4, 0)),
    Part.ArcOfCircle(Part.Circle(V(5, 17.4, 0), V(0, 0, 1), 5), math.radians(0), math.radians(37)),
    Part.LineSegment(V(9, 20.4, 0), V(10, 20.4, 0)),
], False)
sketch9.addConstraint([
    Sketcher.Constraint("Tangent", 1, 2, 2, 1),
    Sketcher.Constraint("Coincident", 2, 2, 3, 1),
    Sketcher.Constraint("Coincident", 3, 2, 1, 1),
    Sketcher.Constraint("Vertical", 1),
    Sketcher.Constraint("Horizontal", 3),
    Sketcher.Constraint("Horizontal", 0, 3, 2, 3),
    Sketcher.Constraint("Diameter", 0, Q("2.3 mm")),
    Sketcher.Constraint("DistanceY", 1, 2, 1, 1, Q("3 mm")),
    Sketcher.Constraint("Radius", 2, Q("5 mm")),
    Sketcher.Constraint("DistanceX", -1, 1, 2, 3, Q("5 mm")),
    Sketcher.Constraint("DistanceX", -1, 1, 0, 3, Q("7.5 mm")),
    Sketcher.Constraint("DistanceY", -1, 1, 0, 3, Q("17.4427 mm")),
])
sketch9.setExpression("Constraints[6]", "Params.sketch9_diameter")
sketch9.setExpression("Constraints[7]", "Params.sketch9_height")
sketch9.setExpression("Constraints[8]", "Params.sketch9_radius")
pocket1 = body.newObject("PartDesign::Pocket", "Pocket")
pocket1.Profile = sketch9
pocket1.setExpression("Length", "Params.pocket1_length")
pocket1.Reversed = True

sketch10 = body.newObject("Sketcher::SketchObject", "Sketch009")
sketch10.AttachmentSupport = (doc.getObject("XY_Plane"), [""])
sketch10.MapMode = "FlatFace"
sketch10.AttachmentOffset = App.Placement(V(0, 0, 12.0089), App.Rotation())
sketch10.addGeometry([
    Part.LineSegment(V(0, 2.5, 0), V(2, 2.5, 0)),
    Part.LineSegment(V(2, 2.5, 0), V(2, 9.1, 0)),
    Part.LineSegment(V(2, 9.1, 0), V(0, 9.1, 0)),
    Part.LineSegment(V(0, 9.1, 0), V(0, 2.5, 0)),
], False)
sketch10.addConstraint([
    Sketcher.Constraint("Coincident", 0, 2, 1, 1),
    Sketcher.Constraint("Coincident", 1, 2, 2, 1),
    Sketcher.Constraint("Coincident", 2, 2, 3, 1),
    Sketcher.Constraint("Coincident", 3, 2, 0, 1),
    Sketcher.Constraint("Horizontal", 0),
    Sketcher.Constraint("Vertical", 1),
    Sketcher.Constraint("Horizontal", 2),
    Sketcher.Constraint("Vertical", 3),
    Sketcher.Constraint("PointOnObject", 2, 2, -2),
    Sketcher.Constraint("DistanceX", 0, 1, 0, 2, Q("2 mm")),
    Sketcher.Constraint("DistanceY", 1, 1, 1, 2, Q("6.6 mm")),
    Sketcher.Constraint("DistanceY", -1, 1, 0, 2, Q("2.45 mm")),
])
sketch10.setExpression("Constraints[9]", "Params.sketch10_width")
sketch10.setExpression("Constraints[10]", "Params.sketch10_height")
pad8 = body.newObject("PartDesign::Pad", "Pad007")
pad8.Profile = sketch10
pad8.setExpression("Length", "Params.pad8_length")

sketch11 = body.newObject("Sketcher::SketchObject", "Sketch010")
sketch11.AttachmentSupport = (doc.getObject("YZ_Plane"), [""])
sketch11.MapMode = "FlatFace"
sketch11.AttachmentOffset = App.Placement(V(0, 0, 2), App.Rotation())
sketch11.addGeometry(Part.Circle(V(3.8, 15.9, 0), V(0, 0, 1), 0.5), False)
sketch11.addConstraint([
    Sketcher.Constraint("Diameter", 0, Q("1 mm")),
    Sketcher.Constraint("DistanceX", -1, 1, 0, 3, Q("3.75 mm")),
    Sketcher.Constraint("DistanceY", -1, 1, 0, 3, Q("15.9427 mm")),
])
sketch11.setExpression("Constraints[0]", "Params.sketch11_diameter")
doc.recompute()
hole2 = body.newObject("PartDesign::Hole", "Hole001")
hole2.Profile = sketch11
hole2.ThreadType = "None"
hole2.setExpression("Diameter", "Params.hole2_diameter")
hole2.DepthType = "Dimension"
hole2.setExpression("Depth", "Params.hole2_depth")
hole2.DrillPoint = "Flat"

doc.recompute()
